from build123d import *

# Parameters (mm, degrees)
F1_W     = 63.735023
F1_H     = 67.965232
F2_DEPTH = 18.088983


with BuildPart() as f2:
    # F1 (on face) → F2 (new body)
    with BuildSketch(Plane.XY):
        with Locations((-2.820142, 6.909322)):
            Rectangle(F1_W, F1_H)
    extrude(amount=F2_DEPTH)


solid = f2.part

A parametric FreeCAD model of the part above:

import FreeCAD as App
import Part
import Sketcher
Q = App.Units.Quantity


def add_polygon(sketch, points):
    """Adds a closed chain of lines whose ends are joined by coincident constraints."""
    first, n = sketch.GeometryCount, len(points)
    for a, b in zip(points, points[1:] + points[:1]):
        sketch.addGeometry(Part.LineSegment(App.Vector(*a, 0), App.Vector(*b, 0)), False)
    for i in range(n):
        sketch.addConstraint(Sketcher.Constraint("Coincident", first + i, 2, first + (i + 1) % n, 1))

doc = App.newDocument("Part")
params = doc.addObject("Spreadsheet::Sheet", "Params")
for row, (alias, value) in enumerate([
    ("pad1_length", "18.088983 mm"),
], start=1):
    params.set(f"A{row}", alias)
    params.set(f"B{row}", "=" + value)
    params.setAlias(f"B{row}", alias)

body = doc.addObject("PartDesign::Body", "Body")

sketch1 = doc.addObject("Sketcher::SketchObject", "Sketch")
body.addObject(sketch1)
sketch1.AttachmentSupport = (doc.XY_Plane, [""])
sketch1.MapMode = "FlatFace"
add_polygon(sketch1, [(-35, 41), (-35, -27), (29, -27), (29, 41)])
sketch1.addConstraint([
    Sketcher.Constraint("Vertical", 0),
    Sketcher.Constraint("Horizontal", 1),
    Sketcher.Constraint("Vertical", 2),
    Sketcher.Constraint("Horizontal", 3),
    Sketcher.Constraint("DistanceY", 0, 2, 0, 1, Q("67.965232 mm")),
    Sketcher.Constraint("DistanceX", 1, 1, 1, 2, Q("63.735023 mm")),
    Sketcher.Constraint("DistanceX", -1, 1, 1, 2, Q("29.047369 mm")),
    Sketcher.Constraint("DistanceY", -1, 1, 2, 2, Q("40.891938 mm")),
])
pad1 = doc.addObject("PartDesign::Pad", "Pad")
body.addObject(pad1)
pad1.Profile = sketch1
pad1.setExpression("Length", "Params.pad1_length")

doc.recompute()
